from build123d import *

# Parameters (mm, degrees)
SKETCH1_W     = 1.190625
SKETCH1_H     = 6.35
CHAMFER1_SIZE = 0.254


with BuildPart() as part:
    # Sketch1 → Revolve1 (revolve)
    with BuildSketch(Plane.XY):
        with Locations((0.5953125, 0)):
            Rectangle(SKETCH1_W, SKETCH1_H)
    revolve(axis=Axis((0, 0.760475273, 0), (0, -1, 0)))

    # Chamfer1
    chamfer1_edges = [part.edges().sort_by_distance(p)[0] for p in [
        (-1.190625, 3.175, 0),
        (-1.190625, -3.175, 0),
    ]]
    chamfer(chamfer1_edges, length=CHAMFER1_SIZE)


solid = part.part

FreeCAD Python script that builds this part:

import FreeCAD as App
import Part
import Sketcher

V = App.Vector
Q = App.Units.Quantity


def edges_at(feature, points):
    """Names of the edges that pass closest to the given points."""
    edges = feature.Shape.Edges
    near = lambda p: min(range(len(edges)), key=lambda i: edges[i].distToShape(Part.Vertex(*p))[0])
    return sorted({f"Edge{near(p) + 1}" for p in points})

doc = App.newDocument("Part")
body = doc.addObject("PartDesign::Body", "Body")

# Sketch on XY plane
sketch1 = doc.addObject("Sketcher::SketchObject", "Sketch")
body.addObject(sketch1)
sketch1.AttachmentSupport = (doc.XY_Plane, [""])
sketch1.MapMode = "FlatFace"
sketch1.addGeometry(Part.LineSegment(V(0, 3.175, 0), V(0, -3.175, 0)), False)
sketch1.addGeometry(Part.LineSegment(V(0, -3.175, 0), V(1.190625, -3.175, 0)), False)
sketch1.addGeometry(Part.LineSegment(V(1.190625, -3.175, 0), V(1.190625, 3.175, 0)), False)
sketch1.addGeometry(Part.LineSegment(V(1.190625, 3.175, 0), V(0, 3.175, 0)), False)
sketch1.addConstraint(Sketcher.Constraint("Coincident", 0, 2, 1, 1))
sketch1.addConstraint(Sketcher.Constraint("Coincident", 1, 2, 2, 1))
sketch1.addConstraint(Sketcher.Constraint("Coincident", 2, 2, 3, 1))
sketch1.addConstraint(Sketcher.Constraint("Coincident", 3, 2, 0, 1))
sketch1.addConstraint(Sketcher.Constraint("Vertical", 0))
sketch1.addConstraint(Sketcher.Constraint("Horizontal", 1))
sketch1.addConstraint(Sketcher.Constraint("Vertical", 2))
sketch1.addConstraint(Sketcher.Constraint("Horizontal", 3))
sketch1.addConstraint(Sketcher.Constraint("Symmetric", 0, 2, 3, 2, -1, 1))
sketch1.addConstraint(Sketcher.Constraint("DistanceY", 0, 2, 0, 1, Q("0.25 in")))
sketch1.addConstraint(Sketcher.Constraint("DistanceX", 1, 1, 1, 2, Q("0.046875 in")))
revolution = doc.addObject("PartDesign::Revolution", "Revolution")
body.addObject(revolution)
revolution.Profile = sketch1
revolution.ReferenceAxis = (sketch1, ["V_Axis"])
revolution.Angle = 360
doc.recompute()

chamfer = doc.addObject("PartDesign::Chamfer", "Chamfer")
body.addObject(chamfer)
chamfer.Base = (revolution, edges_at(revolution, [(-1.191, 3.175, 0), (-1.191, -3.175, 0)]))
chamfer.Size = Q("0.01 in")

doc.recompute()
